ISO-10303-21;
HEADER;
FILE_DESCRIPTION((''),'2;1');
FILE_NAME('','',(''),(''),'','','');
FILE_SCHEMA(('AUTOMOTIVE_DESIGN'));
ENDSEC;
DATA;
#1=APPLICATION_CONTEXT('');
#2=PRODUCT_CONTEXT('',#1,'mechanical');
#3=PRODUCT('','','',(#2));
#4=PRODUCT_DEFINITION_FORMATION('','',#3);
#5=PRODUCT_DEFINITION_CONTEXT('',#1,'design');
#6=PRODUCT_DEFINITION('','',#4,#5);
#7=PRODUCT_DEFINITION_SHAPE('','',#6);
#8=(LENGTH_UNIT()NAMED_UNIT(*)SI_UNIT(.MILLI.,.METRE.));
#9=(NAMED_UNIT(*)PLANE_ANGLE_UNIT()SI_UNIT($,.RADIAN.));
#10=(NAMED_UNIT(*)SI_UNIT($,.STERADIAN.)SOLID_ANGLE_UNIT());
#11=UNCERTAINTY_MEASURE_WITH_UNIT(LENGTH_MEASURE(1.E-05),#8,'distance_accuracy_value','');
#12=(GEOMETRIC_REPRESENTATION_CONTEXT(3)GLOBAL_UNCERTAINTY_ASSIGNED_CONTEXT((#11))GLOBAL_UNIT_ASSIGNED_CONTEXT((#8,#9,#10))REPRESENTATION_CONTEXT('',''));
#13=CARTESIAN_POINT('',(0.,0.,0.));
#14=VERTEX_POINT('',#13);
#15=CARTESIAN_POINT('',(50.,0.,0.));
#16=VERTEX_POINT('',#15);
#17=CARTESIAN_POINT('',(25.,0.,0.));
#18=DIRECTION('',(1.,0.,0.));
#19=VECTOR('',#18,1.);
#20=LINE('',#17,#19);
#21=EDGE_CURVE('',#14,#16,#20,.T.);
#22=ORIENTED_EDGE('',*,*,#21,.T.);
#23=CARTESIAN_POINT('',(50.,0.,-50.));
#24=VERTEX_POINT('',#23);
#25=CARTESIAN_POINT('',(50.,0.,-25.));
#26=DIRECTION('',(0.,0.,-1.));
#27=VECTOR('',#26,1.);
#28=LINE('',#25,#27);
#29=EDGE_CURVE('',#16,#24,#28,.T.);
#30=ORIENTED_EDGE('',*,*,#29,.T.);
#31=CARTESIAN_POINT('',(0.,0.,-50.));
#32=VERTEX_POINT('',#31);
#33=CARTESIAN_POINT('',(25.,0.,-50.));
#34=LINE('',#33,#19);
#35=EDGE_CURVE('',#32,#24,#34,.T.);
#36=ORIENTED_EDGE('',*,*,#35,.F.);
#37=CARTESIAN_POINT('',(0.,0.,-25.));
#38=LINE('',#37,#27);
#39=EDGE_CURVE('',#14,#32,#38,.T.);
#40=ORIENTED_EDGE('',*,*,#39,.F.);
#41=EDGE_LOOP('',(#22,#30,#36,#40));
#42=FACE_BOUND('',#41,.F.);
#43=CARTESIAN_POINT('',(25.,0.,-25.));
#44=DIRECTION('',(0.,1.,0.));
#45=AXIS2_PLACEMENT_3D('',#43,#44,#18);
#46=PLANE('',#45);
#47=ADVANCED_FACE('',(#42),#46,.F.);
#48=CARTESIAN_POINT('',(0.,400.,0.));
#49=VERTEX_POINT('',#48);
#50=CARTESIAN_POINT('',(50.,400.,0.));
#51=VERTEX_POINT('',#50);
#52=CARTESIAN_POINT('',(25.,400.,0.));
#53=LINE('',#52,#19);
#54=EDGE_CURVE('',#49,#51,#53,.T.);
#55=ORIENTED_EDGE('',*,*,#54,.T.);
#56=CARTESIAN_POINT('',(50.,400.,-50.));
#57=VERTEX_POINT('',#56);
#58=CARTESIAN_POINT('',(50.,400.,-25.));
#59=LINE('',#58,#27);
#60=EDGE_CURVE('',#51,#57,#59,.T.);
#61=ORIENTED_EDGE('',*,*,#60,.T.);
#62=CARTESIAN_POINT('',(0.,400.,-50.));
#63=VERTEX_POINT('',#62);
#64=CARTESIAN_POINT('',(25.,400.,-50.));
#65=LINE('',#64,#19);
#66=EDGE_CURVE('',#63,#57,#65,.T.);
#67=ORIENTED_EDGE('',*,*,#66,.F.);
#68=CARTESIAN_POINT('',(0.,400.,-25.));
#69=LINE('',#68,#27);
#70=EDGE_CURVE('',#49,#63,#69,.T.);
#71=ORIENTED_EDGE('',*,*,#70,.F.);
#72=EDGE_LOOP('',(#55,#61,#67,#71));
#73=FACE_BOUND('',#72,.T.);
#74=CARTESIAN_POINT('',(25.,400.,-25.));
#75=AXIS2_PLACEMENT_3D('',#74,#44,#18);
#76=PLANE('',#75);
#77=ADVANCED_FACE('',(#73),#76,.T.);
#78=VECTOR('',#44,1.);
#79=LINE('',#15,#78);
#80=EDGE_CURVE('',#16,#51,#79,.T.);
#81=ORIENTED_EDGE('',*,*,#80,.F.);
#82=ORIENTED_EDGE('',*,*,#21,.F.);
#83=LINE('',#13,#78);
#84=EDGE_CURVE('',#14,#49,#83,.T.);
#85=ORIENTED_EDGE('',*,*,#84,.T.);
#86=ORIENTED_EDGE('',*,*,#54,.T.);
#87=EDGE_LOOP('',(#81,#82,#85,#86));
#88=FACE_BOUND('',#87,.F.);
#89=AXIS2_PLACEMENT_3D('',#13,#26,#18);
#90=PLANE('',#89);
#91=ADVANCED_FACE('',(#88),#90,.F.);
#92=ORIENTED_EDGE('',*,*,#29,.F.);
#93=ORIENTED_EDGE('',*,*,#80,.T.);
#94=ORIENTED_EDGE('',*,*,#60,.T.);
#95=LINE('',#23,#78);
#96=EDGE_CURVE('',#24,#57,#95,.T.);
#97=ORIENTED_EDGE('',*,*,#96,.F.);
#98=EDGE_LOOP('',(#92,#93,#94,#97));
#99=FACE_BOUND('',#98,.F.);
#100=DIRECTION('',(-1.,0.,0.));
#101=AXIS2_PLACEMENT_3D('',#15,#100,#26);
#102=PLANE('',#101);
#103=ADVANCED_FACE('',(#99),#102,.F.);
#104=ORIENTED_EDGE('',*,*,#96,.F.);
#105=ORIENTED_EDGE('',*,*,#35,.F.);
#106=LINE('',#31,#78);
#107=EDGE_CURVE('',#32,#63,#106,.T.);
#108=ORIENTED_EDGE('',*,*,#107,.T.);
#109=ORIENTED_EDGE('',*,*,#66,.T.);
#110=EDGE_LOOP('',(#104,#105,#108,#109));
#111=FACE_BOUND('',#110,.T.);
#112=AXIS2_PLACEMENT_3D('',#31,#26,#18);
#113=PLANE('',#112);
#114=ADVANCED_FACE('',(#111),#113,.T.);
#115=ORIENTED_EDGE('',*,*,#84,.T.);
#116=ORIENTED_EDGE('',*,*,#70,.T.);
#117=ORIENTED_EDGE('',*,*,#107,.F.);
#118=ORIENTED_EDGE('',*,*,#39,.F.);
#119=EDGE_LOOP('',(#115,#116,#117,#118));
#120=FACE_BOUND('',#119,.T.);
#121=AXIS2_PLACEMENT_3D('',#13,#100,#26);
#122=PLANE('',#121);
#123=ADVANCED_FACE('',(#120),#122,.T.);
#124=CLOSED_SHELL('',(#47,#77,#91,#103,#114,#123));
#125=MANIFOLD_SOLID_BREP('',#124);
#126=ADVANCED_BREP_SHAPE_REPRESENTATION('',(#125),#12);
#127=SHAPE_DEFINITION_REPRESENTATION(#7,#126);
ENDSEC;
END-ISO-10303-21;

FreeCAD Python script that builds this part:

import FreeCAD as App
import Part
import Sketcher
from FreeCAD import Vector
Q = App.Units.Quantity

doc = App.newDocument("Part")
body = doc.addObject("PartDesign::Body", "Body")

# Sketch on XZ plane
sketch1 = body.newObject("Sketcher::SketchObject", "Sketch")
sketch1.AttachmentSupport = (doc.getObject("XZ_Plane"), [""])
sketch1.MapMode = "FlatFace"
sketch1.addGeometry(Part.LineSegment(Vector(0, -50, 0), Vector(0, 0, 0)), False)
sketch1.addGeometry(Part.LineSegment(Vector(0, 0, 0), Vector(50, 0, 0)), False)
sketch1.addGeometry(Part.LineSegment(Vector(50, 0, 0), Vector(50, -50, 0)), False)
sketch1.addGeometry(Part.LineSegment(Vector(50, -50, 0), Vector(0, -50, 0)), False)
sketch1.addConstraint(Sketcher.Constraint("Coincident", 0, 2, 1, 1))
sketch1.addConstraint(Sketcher.Constraint("Coincident", 1, 2, 2, 1))
sketch1.addConstraint(Sketcher.Constraint("Coincident", 2, 2, 3, 1))
sketch1.addConstraint(Sketcher.Constraint("Coincident", 3, 2, 0, 1))
sketch1.addConstraint(Sketcher.Constraint("Vertical", 0))
sketch1.addConstraint(Sketcher.Constraint("Horizontal", 1))
sketch1.addConstraint(Sketcher.Constraint("Vertical", 2))
sketch1.addConstraint(Sketcher.Constraint("Horizontal", 3))
sketch1.addConstraint(Sketcher.Constraint("Coincident", 0, 2, -1, 1))
sketch1.addConstraint(Sketcher.Constraint("Equal", 3, 0))
sketch1.addConstraint(Sketcher.Constraint("DistanceX", 1, 1, 1, 2, Q("50 mm")))
pad1 = body.newObject("PartDesign::Pad", "Pad")
pad1.Profile = sketch1
pad1.Length = 400
pad1.Reversed = True

doc.recompute()
